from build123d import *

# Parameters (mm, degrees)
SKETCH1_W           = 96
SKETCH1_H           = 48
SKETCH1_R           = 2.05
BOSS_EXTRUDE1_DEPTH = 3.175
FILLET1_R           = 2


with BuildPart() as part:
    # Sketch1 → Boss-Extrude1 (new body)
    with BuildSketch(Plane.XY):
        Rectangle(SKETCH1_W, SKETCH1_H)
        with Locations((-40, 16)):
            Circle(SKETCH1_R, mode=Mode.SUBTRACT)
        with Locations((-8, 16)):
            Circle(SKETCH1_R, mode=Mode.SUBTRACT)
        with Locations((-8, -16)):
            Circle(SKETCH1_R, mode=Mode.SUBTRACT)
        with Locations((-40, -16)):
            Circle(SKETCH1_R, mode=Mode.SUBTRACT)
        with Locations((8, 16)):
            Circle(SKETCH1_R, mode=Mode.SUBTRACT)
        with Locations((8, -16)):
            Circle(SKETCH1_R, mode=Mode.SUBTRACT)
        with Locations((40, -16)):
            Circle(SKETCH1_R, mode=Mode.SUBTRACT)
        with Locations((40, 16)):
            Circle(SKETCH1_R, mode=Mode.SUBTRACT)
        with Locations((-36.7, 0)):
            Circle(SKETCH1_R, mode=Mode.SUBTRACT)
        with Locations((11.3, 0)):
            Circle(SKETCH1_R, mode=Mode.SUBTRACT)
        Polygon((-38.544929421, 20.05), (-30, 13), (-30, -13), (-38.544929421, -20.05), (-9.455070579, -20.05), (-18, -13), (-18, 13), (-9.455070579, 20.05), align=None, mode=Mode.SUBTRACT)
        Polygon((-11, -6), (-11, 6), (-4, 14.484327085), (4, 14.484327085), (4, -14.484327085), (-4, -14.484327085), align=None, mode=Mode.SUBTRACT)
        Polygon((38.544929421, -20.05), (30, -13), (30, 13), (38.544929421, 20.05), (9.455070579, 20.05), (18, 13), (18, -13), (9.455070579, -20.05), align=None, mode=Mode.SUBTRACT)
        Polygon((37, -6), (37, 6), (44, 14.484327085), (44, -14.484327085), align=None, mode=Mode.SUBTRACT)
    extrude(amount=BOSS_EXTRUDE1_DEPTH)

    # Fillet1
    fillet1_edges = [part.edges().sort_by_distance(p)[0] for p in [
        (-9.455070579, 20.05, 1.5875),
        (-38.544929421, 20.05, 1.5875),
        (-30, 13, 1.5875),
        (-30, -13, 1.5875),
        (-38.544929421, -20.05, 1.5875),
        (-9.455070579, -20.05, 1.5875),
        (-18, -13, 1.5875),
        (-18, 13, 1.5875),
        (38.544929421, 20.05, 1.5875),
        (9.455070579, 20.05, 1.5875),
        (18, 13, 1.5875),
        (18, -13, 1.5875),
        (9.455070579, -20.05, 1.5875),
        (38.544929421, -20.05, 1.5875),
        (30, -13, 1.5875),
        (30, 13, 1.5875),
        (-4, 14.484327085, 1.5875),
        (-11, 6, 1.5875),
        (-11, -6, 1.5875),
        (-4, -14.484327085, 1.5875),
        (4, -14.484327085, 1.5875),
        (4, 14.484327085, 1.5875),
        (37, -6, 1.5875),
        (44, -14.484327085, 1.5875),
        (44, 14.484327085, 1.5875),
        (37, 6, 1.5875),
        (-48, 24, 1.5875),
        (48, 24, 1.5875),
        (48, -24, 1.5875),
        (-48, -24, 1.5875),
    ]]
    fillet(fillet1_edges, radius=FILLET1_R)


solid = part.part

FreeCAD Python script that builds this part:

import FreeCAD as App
import Part
import Sketcher
from FreeCAD import Vector
Q = App.Units.Quantity


def edges_at(feature, points):
    """Names of the edges that pass closest to the given points."""
    edges = feature.Shape.Edges
    near = lambda p: min(range(len(edges)), key=lambda i: edges[i].distToShape(Part.Vertex(*p))[0])
    return sorted({f"Edge{near(p) + 1}" for p in points})


def add_polygon(sketch, points):
    """Adds a closed chain of lines whose ends are joined by coincident constraints."""
    first, n = sketch.GeometryCount, len(points)
    for a, b in zip(points, points[1:] + points[:1]):
        sketch.addGeometry(Part.LineSegment(App.Vector(*a, 0), App.Vector(*b, 0)), False)
    for i in range(n):
        sketch.addConstraint(Sketcher.Constraint("Coincident", first + i, 2, first + (i + 1) % n, 1))

doc = App.newDocument("Part")
params = doc.addObject("Spreadsheet::Sheet", "Params")
for row, (alias, value) in enumerate([
    ("sketch1_diameter", "4.1 mm"),
    ("sketch1_width", "96 mm"),
    ("sketch1_width2", "8 mm"),
    ("sketch1_height", "48 mm"),
    ("sketch1_height2", "26 mm"),
    ("pad1_length", "3.175 mm"),
    ("fillet_radius", "2 mm"),
], start=1):
    params.set(f"A{row}", alias)
    params.set(f"B{row}", "=" + value)
    params.setAlias(f"B{row}", alias)

body = doc.addObject("PartDesign::Body", "Body")

# Sketch on XY plane
sketch1 = doc.addObject("Sketcher::SketchObject", "Sketch")
body.addObject(sketch1)
sketch1.AttachmentSupport = (doc.XY_Plane, [""])
sketch1.MapMode = "FlatFace"
add_polygon(sketch1, [(-48, 24), (-48, -24), (48, -24), (48, 24)])  # lines 0-3
sketch1.addGeometry(Part.Circle(Vector(-40, -16, 0), Vector(0, 0, 1), 2.05), False)  # 4
sketch1.addGeometry(Part.Circle(Vector(-8, -16, 0), Vector(0, 0, 1), 2.05), False)  # 5
sketch1.addGeometry(Part.Circle(Vector(-36.7, 0, 0), Vector(0, 0, 1), 2.05), False)  # 6
add_polygon(sketch1, [(-30, 13), (-38.544929, 20.05), (-9.455071, 20.05), (-18, 13), (-18, -13), (-9.455071, -20.05), (-38.544929, -20.05), (-30, -13)])  # lines 7-14
add_polygon(sketch1, [(-4, -14.484327), (-11, -6), (-11, 6), (-4, 14.484327), (4, 14.484327), (4, -14.484327)])  # lines 15-20
sketch1.addGeometry(Part.Circle(Vector(8, -16, 0), Vector(0, 0, 1), 2.05), False)  # 21
sketch1.addGeometry(Part.Circle(Vector(40, -16, 0), Vector(0, 0, 1), 2.05), False)  # 22
sketch1.addGeometry(Part.Circle(Vector(11.3, 0, 0), Vector(0, 0, 1), 2.05), False)  # 23
add_polygon(sketch1, [(30, -13), (38.544929, -20.05), (9.455071, -20.05), (18, -13), (18, 13), (9.455071, 20.05), (38.544929, 20.05), (30, 13)])  # lines 24-31
add_polygon(sketch1, [(44, -14.484327), (37, -6), (37, 6), (44, 14.484327)])  # lines 32-35
sketch1.addGeometry(Part.Circle(Vector(-40, 16, 0), Vector(0, 0, 1), 2.05), False)  # 36
sketch1.addGeometry(Part.Circle(Vector(-8, 16, 0), Vector(0, 0, 1), 2.05), False)  # 37
sketch1.addGeometry(Part.Circle(Vector(8, 16, 0), Vector(0, 0, 1), 2.05), False)  # 38
sketch1.addGeometry(Part.Circle(Vector(40, 16, 0), Vector(0, 0, 1), 2.05), False)  # 39
sketch1.addConstraint([
    Sketcher.Constraint("Vertical", 0),
    Sketcher.Constraint("Horizontal", 1),
    Sketcher.Constraint("Vertical", 2),
    Sketcher.Constraint("Horizontal", 3),
    Sketcher.Constraint("Horizontal", 8),
    Sketcher.Constraint("Vertical", 10),
    Sketcher.Constraint("Horizontal", 12),
    Sketcher.Constraint("Vertical", 14),
    Sketcher.Constraint("Vertical", 16),
    Sketcher.Constraint("Horizontal", 18),
    Sketcher.Constraint("Vertical", 19),
    Sketcher.Constraint("Horizontal", 20),
    Sketcher.Constraint("Horizontal", 25),
    Sketcher.Constraint("Vertical", 27),
    Sketcher.Constraint("Horizontal", 29),
    Sketcher.Constraint("Vertical", 31),
    Sketcher.Constraint("Vertical", 33),
    Sketcher.Constraint("Vertical", 35),
    Sketcher.Constraint("Equal", 4, 5),
    Sketcher.Constraint("Equal", 5, 6),
    Sketcher.Constraint("Equal", 6, 21),
    Sketcher.Constraint("Equal", 21, 22),
    Sketcher.Constraint("Equal", 22, 23),
    Sketcher.Constraint("Equal", 23, 36),
    Sketcher.Constraint("Equal", 36, 37),
    Sketcher.Constraint("Equal", 37, 38),
    Sketcher.Constraint("Equal", 38, 39),
    Sketcher.Constraint("Symmetric", 22, 3, 36, 3, -1, 1),
    Sketcher.Constraint("Symmetric", 21, 3, 37, 3, -1, 1),
    Sketcher.Constraint("Symmetric", 5, 3, 38, 3, -1, 1),
    Sketcher.Constraint("Symmetric", 4, 3, 39, 3, -1, 1),
    Sketcher.Constraint("Symmetric", 0, 2, 2, 2, -1, 1),
    Sketcher.Constraint("Symmetric", 17, 2, 19, 2, -1, 1),
    Sketcher.Constraint("Symmetric", 7, 2, 24, 2, -1, 1),
    Sketcher.Constraint("Symmetric", 9, 2, 26, 2, -1, 1),
    Sketcher.Constraint("Symmetric", 11, 2, 28, 2, -1, 1),
    Sketcher.Constraint("Symmetric", 13, 2, 30, 2, -1, 1),
    Sketcher.Constraint("Symmetric", 5, 3, 21, 3, -2),
    Sketcher.Constraint("Symmetric", 4, 3, 22, 3, -2),
    Sketcher.Constraint("Symmetric", 12, 2, 24, 2, -2),
    Sketcher.Constraint("PointOnObject", 6, 3, -1),
    Sketcher.Constraint("PointOnObject", 23, 3, -1),
    Sketcher.Constraint("Parallel", 7, 11),
    Sketcher.Constraint("Parallel", 9, 13),
    Sketcher.Constraint("Perpendicular", 13, 15),
    Sketcher.Constraint("Perpendicular", 11, 17),
    Sketcher.Constraint("Perpendicular", 17, 24),
    Sketcher.Constraint("Perpendicular", 15, 26),
    Sketcher.Constraint("Parallel", 24, 28),
    Sketcher.Constraint("Parallel", 26, 30),
    Sketcher.Constraint("Perpendicular", 30, 32),
    Sketcher.Constraint("Perpendicular", 28, 34),
    Sketcher.Constraint("Horizontal", 4, 3, 5, 3),
    Sketcher.Constraint("Horizontal", 10, 2, 13, 2),
    Sketcher.Constraint("Horizontal", 9, 2, 14, 2),
    Sketcher.Constraint("Horizontal", 13, 2, 26, 2),
    Sketcher.Constraint("Horizontal", 15, 2, 32, 2),
    Sketcher.Constraint("Horizontal", 16, 2, 33, 2),
    Sketcher.Constraint("Horizontal", 18, 2, 34, 2),
    Sketcher.Constraint("Horizontal", 20, 2, 35, 2),
    Sketcher.Constraint("Diameter", 4, Q("4.1 mm")),
    Sketcher.Constraint("DistanceX", 1, 1, 1, 2, Q("96 mm")),
    Sketcher.Constraint("DistanceX", 18, 1, 18, 2, Q("8 mm")),
    Sketcher.Constraint("DistanceY", 0, 2, 0, 1, Q("48 mm")),
    Sketcher.Constraint("DistanceY", 10, 2, 10, 1, Q("26 mm")),
    Sketcher.Constraint("DistanceY", 16, 1, 16, 2, Q("12 mm")),
    Sketcher.Constraint("DistanceX", 4, 3, -1, 1, Q("40 mm")),
    Sketcher.Constraint("DistanceY", 4, 3, -1, 1, Q("16 mm")),
    Sketcher.Constraint("DistanceX", 5, 3, -1, 1, Q("8 mm")),
    Sketcher.Constraint("DistanceX", 9, 2, -1, 1, Q("18 mm")),
    Sketcher.Constraint("DistanceX", 13, 2, -1, 1, Q("30 mm")),
    Sketcher.Constraint("DistanceX", 15, 2, -1, 1, Q("11 mm")),
    Sketcher.Constraint("DistanceX", -1, 1, 32, 2, Q("37 mm")),
    Sketcher.Constraint("DistanceX", 6, 3, 23, 3, Q("48 mm")),
    Sketcher.Constraint("DistanceX", 6, 3, -1, 1, Q("36.7 mm")),
    Sketcher.Constraint("DistanceY", -1, 1, 7, 2, Q("20.05 mm")),
    Sketcher.Constraint("DistanceX", 8, 1, 8, 2, Q("29.089859 mm")),
])
sketch1.setExpression("Constraints[90]", "Params.sketch1_diameter")
sketch1.setExpression("Constraints[91]", "Params.sketch1_width")
sketch1.setExpression("Constraints[92]", "Params.sketch1_width2")
sketch1.setExpression("Constraints[93]", "Params.sketch1_height")
sketch1.setExpression("Constraints[94]", "Params.sketch1_height2")
pad1 = doc.addObject("PartDesign::Pad", "Pad")
body.addObject(pad1)
pad1.Profile = sketch1
pad1.setExpression("Length", "Params.pad1_length")
doc.recompute()

fillet = doc.addObject("PartDesign::Fillet", "Fillet")
body.addObject(fillet)
fillet.Base = (pad1, edges_at(pad1, [
    (-9.455, 20.05, 1.587),
    (-38.545, 20.05, 1.587),
    (-30, 13, 1.587),
    (-30, -13, 1.587),
    (-38.545, -20.05, 1.587),
    (-9.455, -20.05, 1.587),
    (-18, -13, 1.587),
    (-18, 13, 1.587),
    (38.545, 20.05, 1.587),
    (9.455, 20.05, 1.587),
    (18, 13, 1.587),
    (18, -13, 1.587),
    (9.455, -20.05, 1.587),
    (38.545, -20.05, 1.587),
    (30, -13, 1.587),
    (30, 13, 1.587),
    (-4, 14.484, 1.587),
    (-11, 6, 1.587),
    (-11, -6, 1.587),
    (-4, -14.484, 1.587),
    (4, -14.484, 1.587),
    (4, 14.484, 1.587),
    (37, -6, 1.587),
    (44, -14.484, 1.587),
    (44, 14.484, 1.587),
    (37, 6, 1.587),
    (-48, 24, 1.587),
    (48, 24, 1.587),
    (48, -24, 1.587),
    (-48, -24, 1.587),
]))
fillet.setExpression("Radius", "Params.fillet_radius")

doc.recompute()
